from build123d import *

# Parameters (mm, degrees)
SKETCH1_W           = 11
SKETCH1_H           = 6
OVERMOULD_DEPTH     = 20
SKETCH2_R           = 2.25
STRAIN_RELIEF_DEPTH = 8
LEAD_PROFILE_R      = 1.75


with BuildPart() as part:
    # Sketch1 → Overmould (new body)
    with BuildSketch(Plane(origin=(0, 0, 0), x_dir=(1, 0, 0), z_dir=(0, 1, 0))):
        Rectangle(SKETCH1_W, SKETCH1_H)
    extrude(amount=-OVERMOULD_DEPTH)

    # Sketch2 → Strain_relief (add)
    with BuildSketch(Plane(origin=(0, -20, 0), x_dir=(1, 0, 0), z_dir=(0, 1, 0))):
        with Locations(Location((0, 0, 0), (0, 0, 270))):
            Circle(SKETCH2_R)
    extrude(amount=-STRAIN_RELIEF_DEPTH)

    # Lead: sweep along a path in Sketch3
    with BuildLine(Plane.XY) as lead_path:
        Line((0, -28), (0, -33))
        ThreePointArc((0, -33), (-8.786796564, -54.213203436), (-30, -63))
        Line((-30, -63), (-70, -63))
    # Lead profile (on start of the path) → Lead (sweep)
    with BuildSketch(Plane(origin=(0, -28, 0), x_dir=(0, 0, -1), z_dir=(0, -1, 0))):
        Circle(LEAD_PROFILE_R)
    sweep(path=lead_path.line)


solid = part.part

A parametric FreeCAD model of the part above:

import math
import FreeCAD as App
import Part
import Sketcher

V = App.Vector

doc = App.newDocument("Part")
body = doc.addObject("PartDesign::Body", "Body")

# Sketch on XZ plane
sketch1 = doc.addObject("Sketcher::SketchObject", "Sketch")
body.addObject(sketch1)
sketch1.AttachmentSupport = (doc.XZ_Plane, [""])
sketch1.MapMode = "FlatFace"
sketch1.addGeometry(Part.LineSegment(V(-5.5, -3, 0), V(-5.5, 3, 0)), False)
sketch1.addGeometry(Part.LineSegment(V(-5.5, 3, 0), V(5.5, 3, 0)), False)
sketch1.addGeometry(Part.LineSegment(V(5.5, 3, 0), V(5.5, -3, 0)), False)
sketch1.addGeometry(Part.LineSegment(V(5.5, -3, 0), V(-5.5, -3, 0)), False)
sketch1.addConstraint(Sketcher.Constraint("Coincident", 0, 2, 1, 1))
sketch1.addConstraint(Sketcher.Constraint("Coincident", 1, 2, 2, 1))
sketch1.addConstraint(Sketcher.Constraint("Coincident", 2, 2, 3, 1))
sketch1.addConstraint(Sketcher.Constraint("Coincident", 3, 2, 0, 1))
sketch1.addConstraint(Sketcher.Constraint("Vertical", 0))
sketch1.addConstraint(Sketcher.Constraint("Horizontal", 1))
sketch1.addConstraint(Sketcher.Constraint("Vertical", 2))
sketch1.addConstraint(Sketcher.Constraint("Horizontal", 3))
sketch1.addConstraint(Sketcher.Constraint("Symmetric", 0, 2, 2, 2, -1, 1))
sketch1.addConstraint(Sketcher.Constraint("DistanceX", 1, 1, 1, 2, 11.0))
sketch1.addConstraint(Sketcher.Constraint("DistanceY", 0, 1, 0, 2, 6.0))
pad1 = doc.addObject("PartDesign::Pad", "Pad")
body.addObject(pad1)
pad1.Profile = sketch1
pad1.Length = 20

# Sketch on XZ plane
sketch2 = doc.addObject("Sketcher::SketchObject", "Sketch001")
body.addObject(sketch2)
sketch2.AttachmentSupport = (doc.XZ_Plane, [""])
sketch2.MapMode = "FlatFace"
sketch2.AttachmentOffset = App.Placement(V(0, 0, 20), App.Rotation())
sketch2.addGeometry(Part.Circle(V(0, 0, 0), V(0, 0, 1), 2.25), False)
sketch2.addConstraint(Sketcher.Constraint("Coincident", 0, 3, -1, 1))
sketch2.addConstraint(Sketcher.Constraint("Diameter", 0, 4.5))
pad2 = doc.addObject("PartDesign::Pad", "Pad001")
body.addObject(pad2)
pad2.Profile = sketch2
pad2.Length = 8

# Sketch on XZ plane
sketch3 = doc.addObject("Sketcher::SketchObject", "Sketch002")
body.addObject(sketch3)
sketch3.AttachmentSupport = (doc.XZ_Plane, [""])
sketch3.MapMode = "FlatFace"
sketch3.AttachmentOffset = App.Placement(V(0, 0, 28), App.Rotation())
sketch3.addGeometry(Part.Circle(V(0, 0, 0), V(0, 0, 1), 1.75), False)
sketch3.addConstraint(Sketcher.Constraint("Coincident", 0, 3, -1, 1))
sketch3.addConstraint(Sketcher.Constraint("Diameter", 0, 3.5))

# Sketch on XY plane
sketch4 = doc.addObject("Sketcher::SketchObject", "Sketch003")
body.addObject(sketch4)
sketch4.AttachmentSupport = (doc.XY_Plane, [""])
sketch4.MapMode = "FlatFace"
sketch4.addGeometry(Part.LineSegment(V(0, -28, 0), V(0, -33, 0)), False)
sketch4.addGeometry(Part.ArcOfCircle(Part.Circle(V(-30, -33, 0), V(0, 0, 1), 30), math.radians(-90), math.radians(0)), False)
sketch4.addGeometry(Part.LineSegment(V(-30, -63, 0), V(-70, -63, 0)), False)
sketch4.addConstraint(Sketcher.Constraint("Tangent", 0, 2, 1, 2))
sketch4.addConstraint(Sketcher.Constraint("Tangent", 1, 1, 2, 1))
sketch4.addConstraint(Sketcher.Constraint("Vertical", 0))
sketch4.addConstraint(Sketcher.Constraint("Horizontal", 2))
sketch4.addConstraint(Sketcher.Constraint("PointOnObject", 0, 1, -2))
sketch4.addConstraint(Sketcher.Constraint("Radius", 1, 30.0))
sketch4.addConstraint(Sketcher.Constraint("DistanceX", 2, 2, 2, 1, 40.0))
sketch4.addConstraint(Sketcher.Constraint("DistanceY", 0, 2, 0, 1, 5.0))
sketch4.addConstraint(Sketcher.Constraint("DistanceY", 1, 3, -1, 1, 33.0))
doc.recompute()

additivepipe = doc.addObject("PartDesign::AdditivePipe", "AdditivePipe")
body.addObject(additivepipe)
additivepipe.Profile = sketch3
additivepipe.Spine = (sketch4, ["Edge1", "Edge2", "Edge3"])

doc.recompute()
